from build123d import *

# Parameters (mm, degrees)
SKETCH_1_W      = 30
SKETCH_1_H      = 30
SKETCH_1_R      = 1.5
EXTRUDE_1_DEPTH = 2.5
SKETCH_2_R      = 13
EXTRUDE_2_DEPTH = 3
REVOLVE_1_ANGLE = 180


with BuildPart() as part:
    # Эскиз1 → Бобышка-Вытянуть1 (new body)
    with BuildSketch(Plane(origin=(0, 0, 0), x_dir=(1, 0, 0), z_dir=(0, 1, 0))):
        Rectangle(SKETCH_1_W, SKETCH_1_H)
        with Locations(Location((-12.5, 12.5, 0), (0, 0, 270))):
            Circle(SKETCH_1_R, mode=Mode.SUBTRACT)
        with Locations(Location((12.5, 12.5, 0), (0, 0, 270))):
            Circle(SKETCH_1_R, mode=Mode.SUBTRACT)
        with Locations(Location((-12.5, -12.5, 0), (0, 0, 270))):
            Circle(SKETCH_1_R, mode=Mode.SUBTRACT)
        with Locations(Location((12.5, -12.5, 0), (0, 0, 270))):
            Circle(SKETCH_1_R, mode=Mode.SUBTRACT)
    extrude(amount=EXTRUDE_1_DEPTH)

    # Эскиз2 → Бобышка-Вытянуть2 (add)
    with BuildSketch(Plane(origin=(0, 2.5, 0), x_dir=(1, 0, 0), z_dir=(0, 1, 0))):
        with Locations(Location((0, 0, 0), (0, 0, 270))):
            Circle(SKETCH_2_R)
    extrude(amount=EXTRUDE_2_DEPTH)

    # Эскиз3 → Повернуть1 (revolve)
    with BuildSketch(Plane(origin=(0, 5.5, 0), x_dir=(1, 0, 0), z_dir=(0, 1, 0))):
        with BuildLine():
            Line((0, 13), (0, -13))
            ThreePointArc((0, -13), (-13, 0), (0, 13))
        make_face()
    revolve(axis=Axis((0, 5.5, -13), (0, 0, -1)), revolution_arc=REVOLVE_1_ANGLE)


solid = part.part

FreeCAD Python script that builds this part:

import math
import FreeCAD as App
import Part
import Sketcher


def add_polygon(sketch, points):
    """Adds a closed chain of lines whose ends are joined by coincident constraints."""
    first, n = sketch.GeometryCount, len(points)
    for a, b in zip(points, points[1:] + points[:1]):
        sketch.addGeometry(Part.LineSegment(App.Vector(*a, 0), App.Vector(*b, 0)), False)
    for i in range(n):
        sketch.addConstraint(Sketcher.Constraint("Coincident", first + i, 2, first + (i + 1) % n, 1))

doc = App.newDocument("Part")
params = doc.addObject("Spreadsheet::Sheet", "Params")
for row, (alias, value) in enumerate([
    ("sketch1_diameter", "3 mm"),
    ("sketch1_width", "30 mm"),
    ("pad1_length", "2.5 mm"),
    ("sketch2_diameter", "26 mm"),
    ("pad2_length", "3 mm"),
    ("sketch3_radius", "13 mm"),
    ("revolution_angle", "180 deg"),
], start=1):
    params.set(f"A{row}", alias)
    params.set(f"B{row}", "=" + value)
    params.setAlias(f"B{row}", alias)

body = doc.addObject("PartDesign::Body", "Body")

# Sketch on XZ plane
sketch1 = body.newObject("Sketcher::SketchObject", "Sketch")
sketch1.AttachmentSupport = (doc.getObject("XZ_Plane"), [""])
sketch1.MapMode = "FlatFace"
add_polygon(sketch1, [(-15, -15), (-15, 15), (15, 15), (15, -15)])  # lines 0-3
sketch1.addGeometry(Part.Circle(App.Vector(-12.5, 12.5, 0), App.Vector(0, 0, 1), 1.5), False)  # 4
sketch1.addGeometry(Part.Circle(App.Vector(12.5, 12.5, 0), App.Vector(0, 0, 1), 1.5), False)  # 5
sketch1.addGeometry(Part.Circle(App.Vector(-12.5, -12.5, 0), App.Vector(0, 0, 1), 1.5), False)  # 6
sketch1.addGeometry(Part.Circle(App.Vector(12.5, -12.5, 0), App.Vector(0, 0, 1), 1.5), False)  # 7
sketch1.addConstraint([
    Sketcher.Constraint("Vertical", 0),
    Sketcher.Constraint("Horizontal", 1),
    Sketcher.Constraint("Vertical", 2),
    Sketcher.Constraint("Horizontal", 3),
    Sketcher.Constraint("Equal", 4, 5),
    Sketcher.Constraint("Equal", 5, 6),
    Sketcher.Constraint("Equal", 6, 7),
    Sketcher.Constraint("Symmetric", 5, 3, 6, 3, -1, 1),
    Sketcher.Constraint("Symmetric", 4, 3, 7, 3, -1, 1),
    Sketcher.Constraint("Symmetric", 0, 2, 2, 2, -1, 1),
    Sketcher.Constraint("Symmetric", 4, 3, 5, 3, -2),
    Sketcher.Constraint("Equal", 3, 0),
    Sketcher.Constraint("Diameter", 4, 3.0),
    Sketcher.Constraint("DistanceX", 1, 1, 1, 2, 30.0),
    Sketcher.Constraint("DistanceX", 4, 3, 5, 3, 25.0),
    Sketcher.Constraint("DistanceY", 6, 3, 4, 3, 25.0),
])
sketch1.setExpression("Constraints[16]", "Params.sketch1_diameter")
sketch1.setExpression("Constraints[17]", "Params.sketch1_width")
pad1 = body.newObject("PartDesign::Pad", "Pad")
pad1.Profile = sketch1
pad1.setExpression("Length", "Params.pad1_length")
pad1.Reversed = True

# Sketch on XZ plane
sketch2 = body.newObject("Sketcher::SketchObject", "Sketch001")
sketch2.AttachmentSupport = (doc.getObject("XZ_Plane"), [""])
sketch2.MapMode = "FlatFace"
sketch2.AttachmentOffset = App.Placement(App.Vector(0, 0, -2.5), App.Rotation())
sketch2.addGeometry(Part.Circle(App.Vector(0, 0, 0), App.Vector(0, 0, 1), 13), False)
sketch2.addConstraint([
    Sketcher.Constraint("Coincident", 0, 3, -1, 1),
    Sketcher.Constraint("Diameter", 0, 26.0),
])
sketch2.setExpression("Constraints[1]", "Params.sketch2_diameter")
pad2 = body.newObject("PartDesign::Pad", "Pad001")
pad2.Profile = sketch2
pad2.setExpression("Length", "Params.pad2_length")
pad2.Reversed = True

# Sketch on XZ plane
sketch3 = body.newObject("Sketcher::SketchObject", "Sketch002")
sketch3.AttachmentSupport = (doc.getObject("XZ_Plane"), [""])
sketch3.MapMode = "FlatFace"
sketch3.AttachmentOffset = App.Placement(App.Vector(0, 0, -5.5), App.Rotation())
sketch3.addGeometry([
    Part.LineSegment(App.Vector(0, 13, 0), App.Vector(0, -13, 0)),
    Part.ArcOfCircle(Part.Circle(App.Vector(0, 0, 0), App.Vector(0, 0, 1), 13), math.radians(90), math.radians(270)),
], False)
sketch3.addConstraint([
    Sketcher.Constraint("Coincident", 0, 1, 1, 1),
    Sketcher.Constraint("Coincident", 1, 2, 0, 2),
    Sketcher.Constraint("Vertical", 0),
    Sketcher.Constraint("Coincident", 1, 3, -1, 1),
    Sketcher.Constraint("PointOnObject", 0, 1, -2),
    Sketcher.Constraint("Radius", 1, 13.0),
])
sketch3.setExpression("Constraints[5]", "Params.sketch3_radius")
revolution = body.newObject("PartDesign::Revolution", "Revolution")
revolution.Profile = sketch3
revolution.ReferenceAxis = (sketch3, ["V_Axis"])
revolution.setExpression("Angle", "Params.revolution_angle")
revolution.Reversed = True

doc.recompute()
